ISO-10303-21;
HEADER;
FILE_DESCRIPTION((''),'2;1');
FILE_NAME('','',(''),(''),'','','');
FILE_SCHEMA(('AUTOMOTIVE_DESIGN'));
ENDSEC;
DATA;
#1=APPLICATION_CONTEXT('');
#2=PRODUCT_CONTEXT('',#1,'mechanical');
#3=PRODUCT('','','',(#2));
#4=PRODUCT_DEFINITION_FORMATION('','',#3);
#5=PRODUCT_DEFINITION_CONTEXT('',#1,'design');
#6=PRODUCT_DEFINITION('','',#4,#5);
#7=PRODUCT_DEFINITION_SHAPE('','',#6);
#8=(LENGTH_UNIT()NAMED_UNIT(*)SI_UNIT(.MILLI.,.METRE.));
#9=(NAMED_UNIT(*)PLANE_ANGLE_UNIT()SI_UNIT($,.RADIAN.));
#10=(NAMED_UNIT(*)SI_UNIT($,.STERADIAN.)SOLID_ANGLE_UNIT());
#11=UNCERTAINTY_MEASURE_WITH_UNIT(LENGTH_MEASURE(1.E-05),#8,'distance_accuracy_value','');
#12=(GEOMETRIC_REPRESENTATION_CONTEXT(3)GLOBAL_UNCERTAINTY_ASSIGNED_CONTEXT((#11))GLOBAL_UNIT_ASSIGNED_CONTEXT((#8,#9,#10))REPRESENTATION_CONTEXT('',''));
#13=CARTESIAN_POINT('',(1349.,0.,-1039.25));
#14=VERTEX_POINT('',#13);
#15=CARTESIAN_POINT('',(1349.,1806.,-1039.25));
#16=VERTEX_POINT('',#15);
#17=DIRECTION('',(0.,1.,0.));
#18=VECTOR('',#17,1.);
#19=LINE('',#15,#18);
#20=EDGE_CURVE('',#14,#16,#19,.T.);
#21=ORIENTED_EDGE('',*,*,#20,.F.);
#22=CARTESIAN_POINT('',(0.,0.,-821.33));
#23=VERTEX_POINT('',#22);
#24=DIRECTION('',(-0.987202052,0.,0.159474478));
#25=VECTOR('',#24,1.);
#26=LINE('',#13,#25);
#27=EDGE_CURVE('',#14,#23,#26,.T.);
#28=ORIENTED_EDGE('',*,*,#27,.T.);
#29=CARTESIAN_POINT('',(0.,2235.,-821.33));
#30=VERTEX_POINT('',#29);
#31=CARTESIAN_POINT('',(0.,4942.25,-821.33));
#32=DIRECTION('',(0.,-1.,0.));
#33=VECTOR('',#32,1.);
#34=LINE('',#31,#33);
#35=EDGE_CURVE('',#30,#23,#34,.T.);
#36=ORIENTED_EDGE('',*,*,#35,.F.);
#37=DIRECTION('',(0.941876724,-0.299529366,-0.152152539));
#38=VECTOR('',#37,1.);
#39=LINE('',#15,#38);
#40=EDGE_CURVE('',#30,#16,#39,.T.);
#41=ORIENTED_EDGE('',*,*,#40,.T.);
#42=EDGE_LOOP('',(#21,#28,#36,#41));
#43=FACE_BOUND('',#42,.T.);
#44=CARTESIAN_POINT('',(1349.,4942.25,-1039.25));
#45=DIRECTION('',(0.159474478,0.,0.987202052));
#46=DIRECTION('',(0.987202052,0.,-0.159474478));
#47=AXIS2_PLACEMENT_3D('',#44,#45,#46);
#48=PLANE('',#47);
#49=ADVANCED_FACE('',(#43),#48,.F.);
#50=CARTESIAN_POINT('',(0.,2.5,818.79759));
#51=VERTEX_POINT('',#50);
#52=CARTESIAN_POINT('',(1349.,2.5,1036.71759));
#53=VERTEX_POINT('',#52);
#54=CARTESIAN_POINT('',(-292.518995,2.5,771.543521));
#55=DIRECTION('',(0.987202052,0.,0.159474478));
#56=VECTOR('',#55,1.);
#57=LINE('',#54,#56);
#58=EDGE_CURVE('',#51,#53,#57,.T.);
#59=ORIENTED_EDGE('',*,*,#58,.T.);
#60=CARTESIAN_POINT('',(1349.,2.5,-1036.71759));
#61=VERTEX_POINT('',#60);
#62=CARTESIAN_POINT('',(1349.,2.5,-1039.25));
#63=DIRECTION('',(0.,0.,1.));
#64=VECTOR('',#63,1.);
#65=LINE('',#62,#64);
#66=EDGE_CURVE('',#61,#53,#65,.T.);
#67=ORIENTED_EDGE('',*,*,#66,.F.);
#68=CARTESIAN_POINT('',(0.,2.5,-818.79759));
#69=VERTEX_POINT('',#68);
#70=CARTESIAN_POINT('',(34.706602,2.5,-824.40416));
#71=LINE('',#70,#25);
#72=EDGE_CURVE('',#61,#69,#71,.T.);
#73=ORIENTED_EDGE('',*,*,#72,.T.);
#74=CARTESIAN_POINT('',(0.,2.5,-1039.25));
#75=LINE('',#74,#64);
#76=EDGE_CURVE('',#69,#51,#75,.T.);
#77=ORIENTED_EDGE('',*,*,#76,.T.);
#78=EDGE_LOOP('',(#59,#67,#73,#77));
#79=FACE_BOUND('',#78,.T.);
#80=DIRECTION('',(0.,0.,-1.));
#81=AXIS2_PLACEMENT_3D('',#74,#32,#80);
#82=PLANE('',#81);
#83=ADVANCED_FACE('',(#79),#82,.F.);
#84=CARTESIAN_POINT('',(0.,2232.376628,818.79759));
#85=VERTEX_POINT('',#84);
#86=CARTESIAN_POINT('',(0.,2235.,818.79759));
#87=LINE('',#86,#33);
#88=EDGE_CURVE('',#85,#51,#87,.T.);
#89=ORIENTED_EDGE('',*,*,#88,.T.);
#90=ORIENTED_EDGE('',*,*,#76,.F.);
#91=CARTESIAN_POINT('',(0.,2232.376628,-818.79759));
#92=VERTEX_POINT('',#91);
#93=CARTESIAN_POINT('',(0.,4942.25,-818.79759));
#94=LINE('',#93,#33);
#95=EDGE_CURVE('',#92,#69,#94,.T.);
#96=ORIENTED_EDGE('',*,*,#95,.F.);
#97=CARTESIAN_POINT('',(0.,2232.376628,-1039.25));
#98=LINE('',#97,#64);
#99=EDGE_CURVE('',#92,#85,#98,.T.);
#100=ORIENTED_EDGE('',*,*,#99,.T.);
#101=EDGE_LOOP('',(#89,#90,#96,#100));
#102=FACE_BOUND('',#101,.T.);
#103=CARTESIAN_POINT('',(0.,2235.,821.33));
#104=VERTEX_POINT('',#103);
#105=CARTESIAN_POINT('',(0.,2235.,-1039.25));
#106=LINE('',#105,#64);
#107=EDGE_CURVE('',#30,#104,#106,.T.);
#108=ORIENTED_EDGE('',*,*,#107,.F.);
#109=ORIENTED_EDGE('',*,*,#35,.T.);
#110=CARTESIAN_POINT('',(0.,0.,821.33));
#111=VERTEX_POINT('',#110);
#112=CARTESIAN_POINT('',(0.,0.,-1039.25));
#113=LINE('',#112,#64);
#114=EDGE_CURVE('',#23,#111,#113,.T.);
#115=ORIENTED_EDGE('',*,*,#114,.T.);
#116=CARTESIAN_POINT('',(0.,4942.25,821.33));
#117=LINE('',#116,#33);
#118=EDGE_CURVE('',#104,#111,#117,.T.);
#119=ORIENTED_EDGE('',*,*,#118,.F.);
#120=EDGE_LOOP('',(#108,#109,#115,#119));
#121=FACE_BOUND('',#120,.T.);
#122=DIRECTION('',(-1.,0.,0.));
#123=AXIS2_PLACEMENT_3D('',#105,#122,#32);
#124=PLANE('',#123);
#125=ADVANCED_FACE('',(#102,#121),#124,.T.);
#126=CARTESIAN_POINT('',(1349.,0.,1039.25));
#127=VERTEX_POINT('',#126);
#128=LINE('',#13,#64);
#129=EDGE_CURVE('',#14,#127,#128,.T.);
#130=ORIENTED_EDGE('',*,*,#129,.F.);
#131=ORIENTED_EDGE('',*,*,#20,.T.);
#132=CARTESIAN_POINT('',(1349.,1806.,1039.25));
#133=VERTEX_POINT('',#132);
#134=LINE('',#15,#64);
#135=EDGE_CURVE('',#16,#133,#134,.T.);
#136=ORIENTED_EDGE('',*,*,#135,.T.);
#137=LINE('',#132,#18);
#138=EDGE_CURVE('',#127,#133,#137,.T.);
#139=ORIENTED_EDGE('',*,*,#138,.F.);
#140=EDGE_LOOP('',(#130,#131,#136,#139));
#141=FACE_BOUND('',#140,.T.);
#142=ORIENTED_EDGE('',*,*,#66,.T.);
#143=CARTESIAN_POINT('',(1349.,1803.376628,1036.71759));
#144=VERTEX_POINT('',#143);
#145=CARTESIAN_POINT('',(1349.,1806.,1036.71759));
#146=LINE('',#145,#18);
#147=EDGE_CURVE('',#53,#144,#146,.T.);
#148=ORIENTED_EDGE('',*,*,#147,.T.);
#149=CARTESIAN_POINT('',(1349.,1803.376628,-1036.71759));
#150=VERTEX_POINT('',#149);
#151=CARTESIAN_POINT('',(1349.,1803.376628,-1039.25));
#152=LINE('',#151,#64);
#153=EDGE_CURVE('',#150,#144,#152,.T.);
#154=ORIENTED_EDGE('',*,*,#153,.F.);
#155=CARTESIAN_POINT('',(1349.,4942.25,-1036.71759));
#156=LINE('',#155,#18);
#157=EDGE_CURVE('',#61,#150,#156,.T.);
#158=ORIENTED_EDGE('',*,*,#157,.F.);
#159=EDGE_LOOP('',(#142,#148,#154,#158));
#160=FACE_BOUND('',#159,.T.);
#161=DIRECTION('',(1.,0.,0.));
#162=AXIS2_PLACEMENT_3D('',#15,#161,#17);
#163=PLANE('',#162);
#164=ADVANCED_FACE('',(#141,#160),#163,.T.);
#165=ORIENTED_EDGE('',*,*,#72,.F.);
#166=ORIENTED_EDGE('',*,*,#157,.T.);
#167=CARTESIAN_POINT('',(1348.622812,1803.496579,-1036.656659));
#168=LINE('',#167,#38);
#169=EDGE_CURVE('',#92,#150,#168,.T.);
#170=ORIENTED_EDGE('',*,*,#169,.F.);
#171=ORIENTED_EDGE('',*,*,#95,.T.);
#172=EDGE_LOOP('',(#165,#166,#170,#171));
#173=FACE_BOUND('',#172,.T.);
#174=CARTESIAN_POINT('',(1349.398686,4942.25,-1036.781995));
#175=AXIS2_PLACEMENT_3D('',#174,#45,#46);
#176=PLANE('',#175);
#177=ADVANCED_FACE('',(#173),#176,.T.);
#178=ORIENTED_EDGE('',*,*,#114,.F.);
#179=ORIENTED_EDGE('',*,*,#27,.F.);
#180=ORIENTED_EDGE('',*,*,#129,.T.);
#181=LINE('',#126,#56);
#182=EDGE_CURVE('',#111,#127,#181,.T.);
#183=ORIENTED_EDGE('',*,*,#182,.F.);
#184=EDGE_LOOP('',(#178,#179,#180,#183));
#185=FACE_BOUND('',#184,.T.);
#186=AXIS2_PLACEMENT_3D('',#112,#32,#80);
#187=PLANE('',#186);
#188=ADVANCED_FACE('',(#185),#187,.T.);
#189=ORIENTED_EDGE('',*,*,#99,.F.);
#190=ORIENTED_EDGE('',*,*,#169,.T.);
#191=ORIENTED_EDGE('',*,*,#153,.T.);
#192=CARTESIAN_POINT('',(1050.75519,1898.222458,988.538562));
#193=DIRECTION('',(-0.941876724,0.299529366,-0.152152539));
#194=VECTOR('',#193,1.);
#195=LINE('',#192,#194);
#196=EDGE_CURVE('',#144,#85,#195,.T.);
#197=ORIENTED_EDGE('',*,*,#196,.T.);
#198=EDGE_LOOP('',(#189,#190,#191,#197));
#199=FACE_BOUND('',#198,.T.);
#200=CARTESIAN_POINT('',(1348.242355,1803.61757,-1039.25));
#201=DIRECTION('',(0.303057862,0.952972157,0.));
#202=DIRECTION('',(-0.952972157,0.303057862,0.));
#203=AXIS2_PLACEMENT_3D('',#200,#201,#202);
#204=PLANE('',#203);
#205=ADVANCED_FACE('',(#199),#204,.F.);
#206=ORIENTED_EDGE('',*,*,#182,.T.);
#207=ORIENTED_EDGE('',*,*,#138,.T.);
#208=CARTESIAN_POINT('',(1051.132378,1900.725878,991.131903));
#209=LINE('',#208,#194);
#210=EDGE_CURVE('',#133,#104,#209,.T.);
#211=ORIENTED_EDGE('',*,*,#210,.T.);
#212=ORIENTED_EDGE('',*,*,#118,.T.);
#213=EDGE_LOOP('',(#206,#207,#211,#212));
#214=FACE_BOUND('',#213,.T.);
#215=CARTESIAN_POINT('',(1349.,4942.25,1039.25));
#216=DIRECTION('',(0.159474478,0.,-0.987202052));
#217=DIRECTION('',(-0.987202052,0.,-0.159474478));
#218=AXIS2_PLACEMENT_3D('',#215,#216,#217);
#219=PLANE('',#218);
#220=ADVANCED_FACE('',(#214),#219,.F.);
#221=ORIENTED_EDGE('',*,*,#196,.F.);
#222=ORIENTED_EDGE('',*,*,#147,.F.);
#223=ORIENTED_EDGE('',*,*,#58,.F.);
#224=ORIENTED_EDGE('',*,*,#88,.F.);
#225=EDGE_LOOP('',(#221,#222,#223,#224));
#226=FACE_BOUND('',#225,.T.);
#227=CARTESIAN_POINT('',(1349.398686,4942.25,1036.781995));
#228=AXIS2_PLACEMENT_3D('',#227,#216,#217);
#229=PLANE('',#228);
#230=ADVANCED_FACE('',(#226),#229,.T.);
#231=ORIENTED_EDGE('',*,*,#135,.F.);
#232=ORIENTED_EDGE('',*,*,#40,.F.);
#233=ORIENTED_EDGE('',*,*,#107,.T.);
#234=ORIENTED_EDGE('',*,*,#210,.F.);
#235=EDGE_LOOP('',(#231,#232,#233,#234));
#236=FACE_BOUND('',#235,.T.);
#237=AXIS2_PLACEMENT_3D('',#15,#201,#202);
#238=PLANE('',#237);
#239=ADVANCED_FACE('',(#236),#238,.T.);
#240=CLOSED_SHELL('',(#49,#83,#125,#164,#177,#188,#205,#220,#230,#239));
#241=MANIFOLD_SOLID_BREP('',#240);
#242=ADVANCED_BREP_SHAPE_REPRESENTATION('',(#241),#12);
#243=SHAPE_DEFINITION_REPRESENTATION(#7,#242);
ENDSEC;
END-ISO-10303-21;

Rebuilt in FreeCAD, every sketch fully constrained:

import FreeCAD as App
import Part
import Sketcher
from FreeCAD import Vector


def faces_at(feature, points):
    """Names of the faces that lie closest to the given points."""
    faces = feature.Shape.Faces
    near = lambda p: min(range(len(faces)), key=lambda i: faces[i].distToShape(Part.Vertex(*p))[0])
    return sorted({f"Face{near(p) + 1}" for p in points})

doc = App.newDocument("Part")
params = doc.addObject("Spreadsheet::Sheet", "Params")
for row, (alias, value) in enumerate([
    ("sketch1_width", "1349 mm"),
    ("sketch1_height", "1806 mm"),
    ("sketch1_height2", "2235 mm"),
    ("pad1_length", "1039.25 mm"),
    ("pad1_length2", "1039.25 mm"),
    ("sketch2_width", "1349 mm"),
    ("sketch2_height", "217.92 mm"),
    ("pocket1_length", "4942.25 mm"),
    ("thickness_wall", "2.5 mm"),
], start=1):
    params.set(f"A{row}", alias)
    params.set(f"B{row}", "=" + value)
    params.setAlias(f"B{row}", alias)

body = doc.addObject("PartDesign::Body", "Body")

# Sketch on XY plane
sketch1 = body.newObject("Sketcher::SketchObject", "Sketch")
sketch1.AttachmentSupport = (doc.getObject("XY_Plane"), [""])
sketch1.MapMode = "FlatFace"
sketch1.addGeometry([
    Part.LineSegment(Vector(0, 0, 0), Vector(1349, 0, 0)),
    Part.LineSegment(Vector(1349, 0, 0), Vector(1349, 1806, 0)),
    Part.LineSegment(Vector(1349, 1806, 0), Vector(0, 2235, 0)),
    Part.LineSegment(Vector(0, 2235, 0), Vector(0, 0, 0)),
], False)
sketch1.addConstraint([
    Sketcher.Constraint("Coincident", 0, 2, 1, 1),
    Sketcher.Constraint("Coincident", 1, 2, 2, 1),
    Sketcher.Constraint("Coincident", 2, 2, 3, 1),
    Sketcher.Constraint("Coincident", 3, 2, 0, 1),
    Sketcher.Constraint("Horizontal", 0),
    Sketcher.Constraint("Vertical", 1),
    Sketcher.Constraint("Vertical", 3),
    Sketcher.Constraint("Coincident", 3, 2, -1, 1),
    Sketcher.Constraint("DistanceX", 0, 1, 0, 2, 1349.0),
    Sketcher.Constraint("DistanceY", 1, 1, 1, 2, 1806.0),
    Sketcher.Constraint("DistanceY", 3, 2, 3, 1, 2235.0),
])
sketch1.setExpression("Constraints[8]", "Params.sketch1_width")
sketch1.setExpression("Constraints[9]", "Params.sketch1_height")
sketch1.setExpression("Constraints[10]", "Params.sketch1_height2")
pad1 = body.newObject("PartDesign::Pad", "Pad")
pad1.Profile = sketch1
pad1.Type = "TwoLengths"
pad1.setExpression("Length", "Params.pad1_length")
pad1.setExpression("Length2", "Params.pad1_length2")

# Sketch on XZ plane
sketch2 = body.newObject("Sketcher::SketchObject", "Sketch001")
sketch2.AttachmentSupport = (doc.getObject("XZ_Plane"), [""])
sketch2.MapMode = "FlatFace"
sketch2.addGeometry([
    Part.LineSegment(Vector(0, 1039.25, 0), Vector(0, 821.33, 0)),  # 0
    Part.LineSegment(Vector(0, 821.33, 0), Vector(1349, 1039.25, 0)),  # 1
    Part.LineSegment(Vector(1349, 1039.25, 0), Vector(0, 1039.25, 0)),  # 2
    Part.LineSegment(Vector(0, -1039.25, 0), Vector(1349, -1039.25, 0)),  # 3
    Part.LineSegment(Vector(1349, -1039.25, 0), Vector(0, -821.33, 0)),  # 4
    Part.LineSegment(Vector(0, -821.33, 0), Vector(0, -1039.25, 0)),  # 5
], False)
sketch2.addConstraint([
    Sketcher.Constraint("Coincident", 0, 2, 1, 1),
    Sketcher.Constraint("Coincident", 1, 2, 2, 1),
    Sketcher.Constraint("Coincident", 2, 2, 0, 1),
    Sketcher.Constraint("Coincident", 3, 2, 4, 1),
    Sketcher.Constraint("Coincident", 4, 2, 5, 1),
    Sketcher.Constraint("Coincident", 5, 2, 3, 1),
    Sketcher.Constraint("Vertical", 0),
    Sketcher.Constraint("Horizontal", 2),
    Sketcher.Constraint("Horizontal", 3),
    Sketcher.Constraint("Vertical", 5),
    Sketcher.Constraint("Symmetric", 0, 2, 4, 2, -1, 1),
    Sketcher.Constraint("Symmetric", 1, 2, 3, 2, -1),
    Sketcher.Constraint("PointOnObject", 0, 2, -2),
    Sketcher.Constraint("DistanceX", 2, 2, 2, 1, 1349.0),
    Sketcher.Constraint("DistanceY", 0, 2, 0, 1, 217.92),
    Sketcher.Constraint("DistanceY", 3, 2, 1, 2, 2078.5),
])
sketch2.setExpression("Constraints[13]", "Params.sketch2_width")
sketch2.setExpression("Constraints[14]", "Params.sketch2_height")
pocket1 = body.newObject("PartDesign::Pocket", "Pocket")
pocket1.Profile = sketch2
pocket1.setExpression("Length", "Params.pocket1_length")
doc.recompute()

thickness = body.newObject("PartDesign::Thickness", "Thickness")
thickness.Base = (pocket1, faces_at(pocket1, [(1349, 903, 0), (0, 1117.5, 0)]))
thickness.setExpression("Value", "Params.thickness_wall")
thickness.Reversed = True
thickness.Join = "Intersection"

doc.recompute()
